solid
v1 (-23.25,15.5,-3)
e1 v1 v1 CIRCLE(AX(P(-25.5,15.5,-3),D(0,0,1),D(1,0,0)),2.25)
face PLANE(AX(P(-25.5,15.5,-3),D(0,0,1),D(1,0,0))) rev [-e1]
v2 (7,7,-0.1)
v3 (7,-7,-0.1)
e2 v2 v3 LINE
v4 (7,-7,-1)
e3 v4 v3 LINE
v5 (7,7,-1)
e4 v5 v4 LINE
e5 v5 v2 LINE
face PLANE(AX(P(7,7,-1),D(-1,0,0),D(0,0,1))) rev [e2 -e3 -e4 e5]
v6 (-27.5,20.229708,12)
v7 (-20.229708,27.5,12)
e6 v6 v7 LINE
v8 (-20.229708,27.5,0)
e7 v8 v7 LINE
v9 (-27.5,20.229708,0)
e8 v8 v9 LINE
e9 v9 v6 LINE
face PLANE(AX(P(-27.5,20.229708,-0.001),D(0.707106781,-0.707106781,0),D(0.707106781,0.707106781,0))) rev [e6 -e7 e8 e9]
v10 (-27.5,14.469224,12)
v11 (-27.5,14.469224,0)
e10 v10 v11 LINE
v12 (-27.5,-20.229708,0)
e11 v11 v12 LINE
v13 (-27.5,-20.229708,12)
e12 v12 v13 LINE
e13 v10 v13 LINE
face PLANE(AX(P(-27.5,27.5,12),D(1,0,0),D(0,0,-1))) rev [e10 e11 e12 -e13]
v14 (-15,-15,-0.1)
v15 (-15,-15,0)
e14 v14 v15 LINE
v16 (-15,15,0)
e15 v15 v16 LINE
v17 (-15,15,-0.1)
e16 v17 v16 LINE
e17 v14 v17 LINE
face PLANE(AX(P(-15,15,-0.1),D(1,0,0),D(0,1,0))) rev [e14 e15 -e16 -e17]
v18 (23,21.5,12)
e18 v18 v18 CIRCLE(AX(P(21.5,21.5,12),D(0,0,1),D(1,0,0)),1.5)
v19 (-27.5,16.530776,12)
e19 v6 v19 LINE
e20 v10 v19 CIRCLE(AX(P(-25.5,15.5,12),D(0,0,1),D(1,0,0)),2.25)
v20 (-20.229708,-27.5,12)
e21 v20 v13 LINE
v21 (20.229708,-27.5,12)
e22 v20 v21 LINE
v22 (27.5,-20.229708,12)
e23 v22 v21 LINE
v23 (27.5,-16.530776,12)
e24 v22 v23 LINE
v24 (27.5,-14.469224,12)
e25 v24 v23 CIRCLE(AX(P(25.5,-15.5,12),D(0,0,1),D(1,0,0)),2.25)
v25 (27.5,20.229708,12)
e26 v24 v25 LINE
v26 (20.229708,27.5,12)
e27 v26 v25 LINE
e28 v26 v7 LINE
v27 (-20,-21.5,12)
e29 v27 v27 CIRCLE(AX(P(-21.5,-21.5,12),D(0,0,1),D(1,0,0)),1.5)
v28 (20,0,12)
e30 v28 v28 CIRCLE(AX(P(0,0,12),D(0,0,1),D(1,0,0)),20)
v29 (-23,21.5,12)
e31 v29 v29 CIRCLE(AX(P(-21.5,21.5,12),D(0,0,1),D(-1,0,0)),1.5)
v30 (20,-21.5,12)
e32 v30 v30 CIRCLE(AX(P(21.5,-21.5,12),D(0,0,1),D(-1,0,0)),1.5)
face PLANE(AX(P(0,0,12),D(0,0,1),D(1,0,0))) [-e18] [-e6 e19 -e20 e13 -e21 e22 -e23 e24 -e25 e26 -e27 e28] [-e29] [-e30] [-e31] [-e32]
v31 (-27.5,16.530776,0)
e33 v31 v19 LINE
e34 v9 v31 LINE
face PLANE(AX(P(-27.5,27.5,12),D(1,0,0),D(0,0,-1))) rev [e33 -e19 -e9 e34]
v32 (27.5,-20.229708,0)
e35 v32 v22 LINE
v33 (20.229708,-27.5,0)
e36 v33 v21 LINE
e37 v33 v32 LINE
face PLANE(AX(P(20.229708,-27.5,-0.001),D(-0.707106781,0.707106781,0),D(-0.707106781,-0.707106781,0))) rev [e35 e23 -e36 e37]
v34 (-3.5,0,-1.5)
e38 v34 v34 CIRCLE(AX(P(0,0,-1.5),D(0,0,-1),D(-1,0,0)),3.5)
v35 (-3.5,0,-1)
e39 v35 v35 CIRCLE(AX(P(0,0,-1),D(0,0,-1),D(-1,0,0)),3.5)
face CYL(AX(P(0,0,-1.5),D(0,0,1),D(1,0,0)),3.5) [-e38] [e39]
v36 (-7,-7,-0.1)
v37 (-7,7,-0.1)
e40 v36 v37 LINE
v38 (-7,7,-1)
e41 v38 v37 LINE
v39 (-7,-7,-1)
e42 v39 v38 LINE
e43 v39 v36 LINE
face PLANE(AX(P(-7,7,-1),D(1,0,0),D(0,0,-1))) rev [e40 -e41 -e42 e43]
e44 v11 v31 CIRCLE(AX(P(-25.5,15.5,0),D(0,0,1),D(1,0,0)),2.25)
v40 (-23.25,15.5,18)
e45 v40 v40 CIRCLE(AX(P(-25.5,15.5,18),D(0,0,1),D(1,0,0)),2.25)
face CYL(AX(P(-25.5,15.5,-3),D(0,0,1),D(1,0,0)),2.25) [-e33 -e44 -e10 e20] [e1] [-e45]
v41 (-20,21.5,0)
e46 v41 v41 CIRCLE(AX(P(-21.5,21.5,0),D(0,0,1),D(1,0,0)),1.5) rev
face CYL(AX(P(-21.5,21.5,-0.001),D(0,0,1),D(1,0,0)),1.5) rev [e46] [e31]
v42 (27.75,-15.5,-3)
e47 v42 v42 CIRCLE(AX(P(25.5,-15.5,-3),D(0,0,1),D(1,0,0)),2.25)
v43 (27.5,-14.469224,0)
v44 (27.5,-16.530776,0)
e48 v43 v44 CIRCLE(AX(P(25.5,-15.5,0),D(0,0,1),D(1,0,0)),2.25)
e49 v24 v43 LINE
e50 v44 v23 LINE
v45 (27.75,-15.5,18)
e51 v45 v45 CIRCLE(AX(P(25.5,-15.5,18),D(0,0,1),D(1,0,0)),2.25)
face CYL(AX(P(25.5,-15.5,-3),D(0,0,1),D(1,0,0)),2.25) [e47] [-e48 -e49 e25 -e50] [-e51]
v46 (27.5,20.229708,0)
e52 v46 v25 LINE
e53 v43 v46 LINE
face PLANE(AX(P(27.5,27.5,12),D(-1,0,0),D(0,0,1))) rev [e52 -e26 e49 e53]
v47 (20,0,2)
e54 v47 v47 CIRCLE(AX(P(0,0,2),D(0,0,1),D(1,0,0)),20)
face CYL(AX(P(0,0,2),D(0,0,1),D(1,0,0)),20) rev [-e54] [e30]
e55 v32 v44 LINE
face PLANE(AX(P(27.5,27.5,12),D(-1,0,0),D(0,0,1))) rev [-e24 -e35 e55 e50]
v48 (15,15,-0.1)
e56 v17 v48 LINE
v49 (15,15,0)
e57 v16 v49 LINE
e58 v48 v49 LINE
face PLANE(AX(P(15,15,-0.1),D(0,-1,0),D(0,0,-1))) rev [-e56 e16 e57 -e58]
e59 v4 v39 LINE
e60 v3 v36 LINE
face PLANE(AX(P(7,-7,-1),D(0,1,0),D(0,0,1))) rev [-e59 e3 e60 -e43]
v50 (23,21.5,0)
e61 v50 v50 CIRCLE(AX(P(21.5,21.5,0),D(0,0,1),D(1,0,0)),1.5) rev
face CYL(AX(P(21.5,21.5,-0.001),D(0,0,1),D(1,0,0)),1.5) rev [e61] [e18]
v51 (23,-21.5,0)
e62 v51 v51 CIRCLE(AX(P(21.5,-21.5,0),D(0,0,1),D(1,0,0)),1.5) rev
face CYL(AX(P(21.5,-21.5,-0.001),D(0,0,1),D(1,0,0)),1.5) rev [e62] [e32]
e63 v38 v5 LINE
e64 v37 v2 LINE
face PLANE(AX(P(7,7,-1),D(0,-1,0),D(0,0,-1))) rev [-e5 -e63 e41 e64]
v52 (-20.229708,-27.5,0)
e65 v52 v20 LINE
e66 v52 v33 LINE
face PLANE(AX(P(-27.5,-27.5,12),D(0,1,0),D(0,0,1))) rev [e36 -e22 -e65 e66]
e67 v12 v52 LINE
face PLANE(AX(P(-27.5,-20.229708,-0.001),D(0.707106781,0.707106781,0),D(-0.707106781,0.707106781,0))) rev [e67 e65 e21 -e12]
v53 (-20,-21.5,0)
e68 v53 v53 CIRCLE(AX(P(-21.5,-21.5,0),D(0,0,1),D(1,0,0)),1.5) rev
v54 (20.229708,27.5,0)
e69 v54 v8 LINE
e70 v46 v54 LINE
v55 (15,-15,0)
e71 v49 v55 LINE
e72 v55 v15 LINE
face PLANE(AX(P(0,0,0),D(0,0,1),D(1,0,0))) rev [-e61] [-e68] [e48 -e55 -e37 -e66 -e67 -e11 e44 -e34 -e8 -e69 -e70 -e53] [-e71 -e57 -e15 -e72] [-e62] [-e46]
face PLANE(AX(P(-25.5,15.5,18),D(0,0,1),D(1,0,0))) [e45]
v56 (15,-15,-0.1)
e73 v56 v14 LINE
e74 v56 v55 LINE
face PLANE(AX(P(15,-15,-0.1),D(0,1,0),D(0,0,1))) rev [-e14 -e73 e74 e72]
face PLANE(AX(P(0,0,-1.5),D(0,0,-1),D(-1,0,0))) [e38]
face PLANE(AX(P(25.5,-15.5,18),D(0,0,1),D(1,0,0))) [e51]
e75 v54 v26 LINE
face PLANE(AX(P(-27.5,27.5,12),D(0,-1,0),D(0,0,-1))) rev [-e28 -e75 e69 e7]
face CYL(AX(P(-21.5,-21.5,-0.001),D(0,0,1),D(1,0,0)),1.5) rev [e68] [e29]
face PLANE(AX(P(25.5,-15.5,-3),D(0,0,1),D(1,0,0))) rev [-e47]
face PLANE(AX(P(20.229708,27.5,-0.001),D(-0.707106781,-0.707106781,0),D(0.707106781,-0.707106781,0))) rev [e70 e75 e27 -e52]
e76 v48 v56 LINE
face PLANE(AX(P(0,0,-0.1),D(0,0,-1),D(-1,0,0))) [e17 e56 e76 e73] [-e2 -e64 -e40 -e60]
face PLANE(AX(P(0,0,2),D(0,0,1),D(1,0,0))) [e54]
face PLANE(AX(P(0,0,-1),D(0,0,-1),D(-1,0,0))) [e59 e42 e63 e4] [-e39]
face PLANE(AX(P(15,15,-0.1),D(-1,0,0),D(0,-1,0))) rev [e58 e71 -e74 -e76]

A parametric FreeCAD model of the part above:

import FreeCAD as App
import Part
import Sketcher

V = App.Vector
Q = App.Units.Quantity


def add_polygon(sketch, points):
    """Adds a closed chain of lines whose ends are joined by coincident constraints."""
    first, n = sketch.GeometryCount, len(points)
    for a, b in zip(points, points[1:] + points[:1]):
        sketch.addGeometry(Part.LineSegment(App.Vector(*a, 0), App.Vector(*b, 0)), False)
    for i in range(n):
        sketch.addConstraint(Sketcher.Constraint("Coincident", first + i, 2, first + (i + 1) % n, 1))

doc = App.newDocument("Part")
body = doc.addObject("PartDesign::Body", "Body")

# Sketch on XY plane
sketch1 = body.newObject("Sketcher::SketchObject", "Sketch")
sketch1.AttachmentSupport = (doc.getObject("XY_Plane"), [""])
sketch1.MapMode = "FlatFace"
add_polygon(sketch1, [(-27.5, 27.5), (-27.5, -27.5), (27.5, -27.5), (27.5, 27.5)])  # lines 0-3
sketch1.addConstraint([
    Sketcher.Constraint("Vertical", 0),
    Sketcher.Constraint("Horizontal", 1),
    Sketcher.Constraint("Vertical", 2),
    Sketcher.Constraint("Horizontal", 3),
    Sketcher.Constraint("Symmetric", 0, 2, 2, 2, -1, 1),
    Sketcher.Constraint("Equal", 3, 0),
    Sketcher.Constraint("DistanceX", 1, 1, 1, 2, Q("55 mm")),
])
pad1 = body.newObject("PartDesign::Pad", "Pad")
pad1.Profile = sketch1
pad1.Length = 12

# Sketch on XY plane
sketch2 = body.newObject("Sketcher::SketchObject", "Sketch001")
sketch2.AttachmentSupport = (doc.getObject("XY_Plane"), [""])
sketch2.MapMode = "FlatFace"
sketch2.AttachmentOffset = App.Placement(V(0, 0, 12), App.Rotation())
sketch2.addGeometry(Part.Circle(V(21.5, 21.5, 0), V(0, 0, 1), 1.5), False)
sketch2.addConstraint([
    Sketcher.Constraint("Diameter", 0, Q("3 mm")),
    Sketcher.Constraint("DistanceX", -1, 1, 0, 3, Q("21.5 mm")),
    Sketcher.Constraint("DistanceY", -1, 1, 0, 3, Q("21.5 mm")),
])
pocket1 = body.newObject("PartDesign::Pocket", "Pocket")
pocket1.Profile = sketch2
pocket1.Type = "UpToFirst"

# Sketch on XY plane
sketch3 = body.newObject("Sketcher::SketchObject", "Sketch002")
sketch3.AttachmentSupport = (doc.getObject("XY_Plane"), [""])
sketch3.MapMode = "FlatFace"
sketch3.AttachmentOffset = App.Placement(V(0, 0, 12), App.Rotation())
sketch3.addGeometry(Part.Circle(V(21.5, -21.5, 0), V(0, 0, 1), 1.5), False)
sketch3.addConstraint([
    Sketcher.Constraint("Diameter", 0, Q("3 mm")),
    Sketcher.Constraint("DistanceX", -1, 1, 0, 3, Q("21.5 mm")),
    Sketcher.Constraint("DistanceY", 0, 3, -1, 1, Q("21.5 mm")),
])
pocket2 = body.newObject("PartDesign::Pocket", "Pocket001")
pocket2.Profile = sketch3
pocket2.Type = "UpToFirst"

# Sketch on XY plane
sketch4 = body.newObject("Sketcher::SketchObject", "Sketch003")
sketch4.AttachmentSupport = (doc.getObject("XY_Plane"), [""])
sketch4.MapMode = "FlatFace"
sketch4.AttachmentOffset = App.Placement(V(0, 0, 12), App.Rotation())
sketch4.addGeometry(Part.Circle(V(-21.5, -21.5, 0), V(0, 0, 1), 1.5), False)
sketch4.addConstraint([
    Sketcher.Constraint("Diameter", 0, Q("3 mm")),
    Sketcher.Constraint("DistanceX", 0, 3, -1, 1, Q("21.5 mm")),
    Sketcher.Constraint("DistanceY", 0, 3, -1, 1, Q("21.5 mm")),
])
pocket3 = body.newObject("PartDesign::Pocket", "Pocket002")
pocket3.Profile = sketch4
pocket3.Type = "UpToFirst"

# Sketch on XY plane
sketch5 = body.newObject("Sketcher::SketchObject", "Sketch004")
sketch5.AttachmentSupport = (doc.getObject("XY_Plane"), [""])
sketch5.MapMode = "FlatFace"
sketch5.AttachmentOffset = App.Placement(V(0, 0, 12), App.Rotation())
sketch5.addGeometry(Part.Circle(V(-21.5, 21.5, 0), V(0, 0, 1), 1.5), False)
sketch5.addConstraint([
    Sketcher.Constraint("Diameter", 0, Q("3 mm")),
    Sketcher.Constraint("DistanceX", 0, 3, -1, 1, Q("21.5 mm")),
    Sketcher.Constraint("DistanceY", -1, 1, 0, 3, Q("21.5 mm")),
])
pocket4 = body.newObject("PartDesign::Pocket", "Pocket003")
pocket4.Profile = sketch5
pocket4.Type = "UpToFirst"

# Sketch on XY plane
sketch6 = body.newObject("Sketcher::SketchObject", "Sketch005")
sketch6.AttachmentSupport = (doc.getObject("XY_Plane"), [""])
sketch6.MapMode = "FlatFace"
sketch6.AttachmentOffset = App.Placement(V(0, 0, 12), App.Rotation())
sketch6.addGeometry(Part.Circle(V(0, 0, 0), V(0, 0, 1), 20), False)
sketch6.addConstraint([
    Sketcher.Constraint("Coincident", 0, 3, -1, 1),
    Sketcher.Constraint("Diameter", 0, Q("40 mm")),
])
pocket5 = body.newObject("PartDesign::Pocket", "Pocket004")
pocket5.Profile = sketch6
pocket5.Length = 10

# Sketch on XY plane
sketch7 = body.newObject("Sketcher::SketchObject", "Sketch006")
sketch7.AttachmentSupport = (doc.getObject("XY_Plane"), [""])
sketch7.MapMode = "FlatFace"
sketch7.AttachmentOffset = App.Placement(V(0, 0, 12), App.Rotation())
add_polygon(sketch7, [(-27.5, 20.229708), (-20.229708, 27.5), (-27.5, 27.5)])  # lines 0-2
sketch7.addConstraint([
    Sketcher.Constraint("Horizontal", 1),
    Sketcher.Constraint("Vertical", 2),
    Sketcher.Constraint("Equal", 1, 2),
    Sketcher.Constraint("DistanceY", -1, 1, 0, 2, Q("27.5 mm")),
    Sketcher.Constraint("DistanceX", 1, 2, -1, 1, Q("27.5 mm")),
    Sketcher.Constraint("DistanceX", 1, 2, 1, 1, Q("7.270292 mm")),
])
pocket6 = body.newObject("PartDesign::Pocket", "Pocket005")
pocket6.Profile = sketch7
pocket6.Type = "UpToFirst"

# Sketch on XY plane
sketch8 = body.newObject("Sketcher::SketchObject", "Sketch007")
sketch8.AttachmentSupport = (doc.getObject("XY_Plane"), [""])
sketch8.MapMode = "FlatFace"
sketch8.AttachmentOffset = App.Placement(V(0, 0, 12), App.Rotation())
add_polygon(sketch8, [(27.5, -20.229708), (20.229708, -27.5), (27.5, -27.5)])  # lines 0-2
sketch8.addConstraint([
    Sketcher.Constraint("Horizontal", 1),
    Sketcher.Constraint("Vertical", 2),
    Sketcher.Constraint("Equal", 1, 2),
    Sketcher.Constraint("DistanceY", 0, 2, -1, 1, Q("27.5 mm")),
    Sketcher.Constraint("DistanceX", -1, 1, 1, 2, Q("27.5 mm")),
    Sketcher.Constraint("DistanceX", 1, 1, 1, 2, Q("7.270292 mm")),
])
pocket7 = body.newObject("PartDesign::Pocket", "Pocket006")
pocket7.Profile = sketch8
pocket7.Type = "UpToFirst"

# Sketch on XY plane
sketch9 = body.newObject("Sketcher::SketchObject", "Sketch008")
sketch9.AttachmentSupport = (doc.getObject("XY_Plane"), [""])
sketch9.MapMode = "FlatFace"
sketch9.AttachmentOffset = App.Placement(V(0, 0, 12), App.Rotation())
add_polygon(sketch9, [(20.229708, 27.5), (27.5, 20.229708), (27.5, 27.5)])  # lines 0-2
sketch9.addConstraint([
    Sketcher.Constraint("Vertical", 1),
    Sketcher.Constraint("Horizontal", 2),
    Sketcher.Constraint("Equal", 2, 1),
    Sketcher.Constraint("DistanceX", -1, 1, 0, 2, Q("27.5 mm")),
    Sketcher.Constraint("DistanceY", -1, 1, 1, 2, Q("27.5 mm")),
    Sketcher.Constraint("DistanceX", 2, 2, 2, 1, Q("7.270292 mm")),
])
pocket8 = body.newObject("PartDesign::Pocket", "Pocket007")
pocket8.Profile = sketch9
pocket8.Type = "UpToFirst"

# Sketch on XY plane
sketch10 = body.newObject("Sketcher::SketchObject", "Sketch009")
sketch10.AttachmentSupport = (doc.getObject("XY_Plane"), [""])
sketch10.MapMode = "FlatFace"
sketch10.AttachmentOffset = App.Placement(V(0, 0, 12), App.Rotation())
add_polygon(sketch10, [(-27.5, -27.5), (-20.229708, -27.5), (-27.5, -20.229708)])  # lines 0-2
sketch10.addConstraint([
    Sketcher.Constraint("Horizontal", 0),
    Sketcher.Constraint("Vertical", 2),
    Sketcher.Constraint("Equal", 0, 2),
    Sketcher.Constraint("DistanceY", 0, 2, -1, 1, Q("27.5 mm")),
    Sketcher.Constraint("DistanceX", 1, 2, -1, 1, Q("27.5 mm")),
    Sketcher.Constraint("DistanceX", 0, 1, 0, 2, Q("7.270292 mm")),
])
pocket9 = body.newObject("PartDesign::Pocket", "Pocket008")
pocket9.Profile = sketch10
pocket9.Type = "UpToFirst"

# Sketch on XY plane
sketch11 = body.newObject("Sketcher::SketchObject", "Sketch010")
sketch11.AttachmentSupport = (doc.getObject("XY_Plane"), [""])
sketch11.MapMode = "FlatFace"
sketch11.AttachmentOffset = App.Placement(V(0, 0, 12), App.Rotation())
sketch11.addGeometry([
    Part.Circle(V(-25.5, 15.5, 0), V(0, 0, 1), 2.25),
    Part.Circle(V(25.5, -15.5, 0), V(0, 0, 1), 2.25),
], False)
sketch11.addConstraint([
    Sketcher.Constraint("Equal", 0, 1),
    Sketcher.Constraint("Symmetric", 0, 3, 1, 3, -1, 1),
    Sketcher.Constraint("Diameter", 0, Q("4.5 mm")),
    Sketcher.Constraint("DistanceX", 0, 3, 1, 3, Q("51 mm")),
    Sketcher.Constraint("DistanceY", 1, 3, 0, 3, Q("31 mm")),
])
pad2 = body.newObject("PartDesign::Pad", "Pad001")
pad2.Profile = sketch11
pad2.Type = "TwoLengths"
pad2.Length = 6
pad2.Length2 = 15

# Sketch on XY plane
sketch12 = body.newObject("Sketcher::SketchObject", "Sketch011")
sketch12.AttachmentSupport = (doc.getObject("XY_Plane"), [""])
sketch12.MapMode = "FlatFace"
add_polygon(sketch12, [(7, 7), (7, -7), (-7, -7), (-7, 7)])  # lines 0-3
sketch12.addConstraint([
    Sketcher.Constraint("Vertical", 0),
    Sketcher.Constraint("Horizontal", 1),
    Sketcher.Constraint("Vertical", 2),
    Sketcher.Constraint("Horizontal", 3),
    Sketcher.Constraint("Symmetric", 0, 2, 2, 2, -1, 1),
    Sketcher.Constraint("Equal", 3, 0),
    Sketcher.Constraint("DistanceX", 1, 2, 1, 1, Q("14 mm")),
])
pad3 = body.newObject("PartDesign::Pad", "Pad002")
pad3.Profile = sketch12
pad3.Length = 1
pad3.Reversed = True

# Sketch on XY plane
sketch13 = body.newObject("Sketcher::SketchObject", "Sketch012")
sketch13.AttachmentSupport = (doc.getObject("XY_Plane"), [""])
sketch13.MapMode = "FlatFace"
sketch13.AttachmentOffset = App.Placement(V(0, 0, -1), App.Rotation())
sketch13.addGeometry(Part.Circle(V(0, 0, 0), V(0, 0, 1), 3.5), False)
sketch13.addConstraint([
    Sketcher.Constraint("Coincident", 0, 3, -1, 1),
    Sketcher.Constraint("Diameter", 0, Q("7 mm")),
])
pad4 = body.newObject("PartDesign::Pad", "Pad003")
pad4.Profile = sketch13
pad4.Length = 0.5
pad4.Reversed = True

# Sketch on XY plane
sketch14 = body.newObject("Sketcher::SketchObject", "Sketch013")
sketch14.AttachmentSupport = (doc.getObject("XY_Plane"), [""])
sketch14.MapMode = "FlatFace"
add_polygon(sketch14, [(15, 15), (15, -15), (-15, -15), (-15, 15)])  # lines 0-3
sketch14.addConstraint([
    Sketcher.Constraint("Vertical", 0),
    Sketcher.Constraint("Horizontal", 1),
    Sketcher.Constraint("Vertical", 2),
    Sketcher.Constraint("Horizontal", 3),
    Sketcher.Constraint("Symmetric", 0, 2, 2, 2, -1, 1),
    Sketcher.Constraint("Equal", 3, 0),
    Sketcher.Constraint("DistanceX", 1, 2, 1, 1, Q("30 mm")),
])
pad5 = body.newObject("PartDesign::Pad", "Pad004")
pad5.Profile = sketch14
pad5.Length = 0.1
pad5.Reversed = True

doc.recompute()
